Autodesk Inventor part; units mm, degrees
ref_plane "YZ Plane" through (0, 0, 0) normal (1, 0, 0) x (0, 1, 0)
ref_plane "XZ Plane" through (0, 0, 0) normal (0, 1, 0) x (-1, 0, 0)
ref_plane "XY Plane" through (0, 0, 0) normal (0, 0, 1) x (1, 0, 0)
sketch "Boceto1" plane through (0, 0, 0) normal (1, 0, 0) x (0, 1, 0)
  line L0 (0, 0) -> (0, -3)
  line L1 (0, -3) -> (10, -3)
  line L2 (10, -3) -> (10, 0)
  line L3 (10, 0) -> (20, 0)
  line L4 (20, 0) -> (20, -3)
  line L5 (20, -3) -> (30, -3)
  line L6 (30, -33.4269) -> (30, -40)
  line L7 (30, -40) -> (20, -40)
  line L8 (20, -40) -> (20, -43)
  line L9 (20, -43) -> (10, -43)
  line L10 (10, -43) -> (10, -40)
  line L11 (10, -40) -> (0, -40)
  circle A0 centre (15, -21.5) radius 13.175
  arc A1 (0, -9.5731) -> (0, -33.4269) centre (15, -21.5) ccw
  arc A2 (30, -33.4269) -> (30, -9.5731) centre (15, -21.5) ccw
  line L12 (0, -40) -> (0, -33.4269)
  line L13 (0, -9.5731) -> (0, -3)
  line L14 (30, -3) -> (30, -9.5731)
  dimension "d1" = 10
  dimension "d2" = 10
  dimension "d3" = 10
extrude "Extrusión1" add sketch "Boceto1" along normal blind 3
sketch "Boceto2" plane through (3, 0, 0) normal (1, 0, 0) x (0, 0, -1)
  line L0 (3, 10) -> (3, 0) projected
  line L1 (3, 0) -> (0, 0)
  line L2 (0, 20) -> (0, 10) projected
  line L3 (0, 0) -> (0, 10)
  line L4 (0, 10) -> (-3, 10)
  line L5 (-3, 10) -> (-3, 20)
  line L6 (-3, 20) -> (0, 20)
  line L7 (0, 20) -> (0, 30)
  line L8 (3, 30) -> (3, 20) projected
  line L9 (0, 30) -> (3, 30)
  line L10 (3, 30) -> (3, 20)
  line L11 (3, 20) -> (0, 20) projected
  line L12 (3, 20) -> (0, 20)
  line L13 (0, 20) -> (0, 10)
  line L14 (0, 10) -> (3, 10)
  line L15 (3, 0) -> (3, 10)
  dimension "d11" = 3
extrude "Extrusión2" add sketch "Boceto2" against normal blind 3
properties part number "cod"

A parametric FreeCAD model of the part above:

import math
import FreeCAD as App
import Part
import Sketcher
from FreeCAD import Vector

doc = App.newDocument("Part")
body = doc.addObject("PartDesign::Body", "Body")

# Sketch on YZ plane
sketch1 = body.newObject("Sketcher::SketchObject", "Sketch")
sketch1.AttachmentSupport = (doc.getObject("YZ_Plane"), [""])
sketch1.MapMode = "FlatFace"
sketch1.addGeometry(Part.LineSegment(Vector(10, -3, 0), Vector(0, -3, 0)), False)
sketch1.addGeometry(Part.LineSegment(Vector(0, -3, 0), Vector(0, -9.6, 0)), False)
sketch1.addGeometry(Part.ArcOfCircle(Part.Circle(Vector(15, -21.5, 0), Vector(0, 0, 1), 19.2), math.radians(142), math.radians(218)), False)
sketch1.addGeometry(Part.LineSegment(Vector(0, -33.4, 0), Vector(0, -40, 0)), False)
sketch1.addGeometry(Part.LineSegment(Vector(0, -40, 0), Vector(10, -40, 0)), False)
sketch1.addGeometry(Part.LineSegment(Vector(10, -40, 0), Vector(10, -43, 0)), False)
sketch1.addGeometry(Part.LineSegment(Vector(10, -43, 0), Vector(20, -43, 0)), False)
sketch1.addGeometry(Part.LineSegment(Vector(20, -43, 0), Vector(20, -40, 0)), False)
sketch1.addGeometry(Part.LineSegment(Vector(20, -40, 0), Vector(30, -40, 0)), False)
sketch1.addGeometry(Part.LineSegment(Vector(30, -40, 0), Vector(30, -33.4, 0)), False)
sketch1.addGeometry(Part.ArcOfCircle(Part.Circle(Vector(15, -21.5, 0), Vector(0, 0, 1), 19.2), math.radians(-38), math.radians(38)), False)
sketch1.addGeometry(Part.LineSegment(Vector(30, -9.6, 0), Vector(30, -3, 0)), False)
sketch1.addGeometry(Part.LineSegment(Vector(30, -3, 0), Vector(20, -3, 0)), False)
sketch1.addGeometry(Part.LineSegment(Vector(20, -3, 0), Vector(20, 0, 0)), False)
sketch1.addGeometry(Part.LineSegment(Vector(20, 0, 0), Vector(10, 0, 0)), False)
sketch1.addGeometry(Part.LineSegment(Vector(10, 0, 0), Vector(10, -3, 0)), False)
sketch1.addGeometry(Part.Circle(Vector(15, -21.5, 0), Vector(0, 0, 1), 13.2), False)
sketch1.addConstraint(Sketcher.Constraint("Coincident", 0, 2, 1, 1))
sketch1.addConstraint(Sketcher.Constraint("Coincident", 1, 2, 2, 1))
sketch1.addConstraint(Sketcher.Constraint("Coincident", 2, 2, 3, 1))
sketch1.addConstraint(Sketcher.Constraint("Coincident", 3, 2, 4, 1))
sketch1.addConstraint(Sketcher.Constraint("Coincident", 4, 2, 5, 1))
sketch1.addConstraint(Sketcher.Constraint("Coincident", 5, 2, 6, 1))
sketch1.addConstraint(Sketcher.Constraint("Coincident", 6, 2, 7, 1))
sketch1.addConstraint(Sketcher.Constraint("Coincident", 7, 2, 8, 1))
sketch1.addConstraint(Sketcher.Constraint("Coincident", 8, 2, 9, 1))
sketch1.addConstraint(Sketcher.Constraint("Coincident", 9, 2, 10, 1))
sketch1.addConstraint(Sketcher.Constraint("Coincident", 10, 2, 11, 1))
sketch1.addConstraint(Sketcher.Constraint("Coincident", 11, 2, 12, 1))
sketch1.addConstraint(Sketcher.Constraint("Coincident", 12, 2, 13, 1))
sketch1.addConstraint(Sketcher.Constraint("Coincident", 13, 2, 14, 1))
sketch1.addConstraint(Sketcher.Constraint("Coincident", 14, 2, 15, 1))
sketch1.addConstraint(Sketcher.Constraint("Coincident", 15, 2, 0, 1))
sketch1.addConstraint(Sketcher.Constraint("Horizontal", 0))
sketch1.addConstraint(Sketcher.Constraint("Vertical", 1))
sketch1.addConstraint(Sketcher.Constraint("Vertical", 3))
sketch1.addConstraint(Sketcher.Constraint("Horizontal", 4))
sketch1.addConstraint(Sketcher.Constraint("Vertical", 5))
sketch1.addConstraint(Sketcher.Constraint("Horizontal", 6))
sketch1.addConstraint(Sketcher.Constraint("Vertical", 7))
sketch1.addConstraint(Sketcher.Constraint("Horizontal", 8))
sketch1.addConstraint(Sketcher.Constraint("Vertical", 9))
sketch1.addConstraint(Sketcher.Constraint("Vertical", 11))
sketch1.addConstraint(Sketcher.Constraint("Horizontal", 12))
sketch1.addConstraint(Sketcher.Constraint("Vertical", 13))
sketch1.addConstraint(Sketcher.Constraint("Horizontal", 14))
sketch1.addConstraint(Sketcher.Constraint("Vertical", 15))
sketch1.addConstraint(Sketcher.Constraint("Coincident", 10, 3, 2, 3))
sketch1.addConstraint(Sketcher.Constraint("Coincident", 16, 3, 2, 3))
sketch1.addConstraint(Sketcher.Constraint("Equal", 2, 10))
sketch1.addConstraint(Sketcher.Constraint("PointOnObject", 0, 2, -2))
sketch1.addConstraint(Sketcher.Constraint("PointOnObject", 2, 2, -2))
sketch1.addConstraint(Sketcher.Constraint("PointOnObject", 13, 2, -1))
sketch1.addConstraint(Sketcher.Constraint("Horizontal", 4, 2, 7, 2))
sketch1.addConstraint(Sketcher.Constraint("Horizontal", 2, 2, 9, 2))
sketch1.addConstraint(Sketcher.Constraint("Horizontal", 1, 2, 10, 2))
sketch1.addConstraint(Sketcher.Constraint("Horizontal", 0, 2, 11, 2))
sketch1.addConstraint(Sketcher.Constraint("Vertical", 7, 2, 12, 2))
sketch1.addConstraint(Sketcher.Constraint("Vertical", 5, 2, 14, 2))
sketch1.addConstraint(Sketcher.Constraint("Equal", 4, 6))
sketch1.addConstraint(Sketcher.Constraint("Equal", 6, 8))
sketch1.addConstraint(Sketcher.Constraint("Equal", 1, 3))
sketch1.addConstraint(Sketcher.Constraint("Equal", 7, 13))
sketch1.addConstraint(Sketcher.Constraint("DistanceX", 0, 2, 0, 1, 10.0))
sketch1.addConstraint(Sketcher.Constraint("Diameter", 16, 26.35))
sketch1.addConstraint(Sketcher.Constraint("DistanceY", 5, 2, 5, 1, 3.0))
sketch1.addConstraint(Sketcher.Constraint("DistanceY", 3, 2, -1, 1, 40.0))
sketch1.addConstraint(Sketcher.Constraint("Radius", 2, 19.1638))
pad1 = body.newObject("PartDesign::Pad", "Pad")
pad1.Profile = sketch1
pad1.Length = 3

# Sketch on YZ plane
sketch2 = body.newObject("Sketcher::SketchObject", "Sketch001")
sketch2.AttachmentSupport = (doc.getObject("YZ_Plane"), [""])
sketch2.MapMode = "FlatFace"
sketch2.AttachmentOffset = App.Placement(Vector(0, 0, 3), App.Rotation())
sketch2.addGeometry(Part.LineSegment(Vector(30, 0, 0), Vector(20, 0, 0)), False)
sketch2.addGeometry(Part.LineSegment(Vector(20, 0, 0), Vector(20, -3, 0)), False)
sketch2.addGeometry(Part.LineSegment(Vector(20, -3, 0), Vector(30, -3, 0)), False)
sketch2.addGeometry(Part.LineSegment(Vector(30, -3, 0), Vector(30, 0, 0)), False)
sketch2.addGeometry(Part.LineSegment(Vector(10, 3, 0), Vector(10, 0, 0)), False)
sketch2.addGeometry(Part.LineSegment(Vector(10, 0, 0), Vector(20, 0, 0)), False)
sketch2.addGeometry(Part.LineSegment(Vector(20, 0, 0), Vector(20, 3, 0)), False)
sketch2.addGeometry(Part.LineSegment(Vector(20, 3, 0), Vector(10, 3, 0)), False)
sketch2.addGeometry(Part.LineSegment(Vector(0, -3, 0), Vector(10, -3, 0)), False)
sketch2.addGeometry(Part.LineSegment(Vector(10, -3, 0), Vector(10, 0, 0)), False)
sketch2.addGeometry(Part.LineSegment(Vector(10, 0, 0), Vector(0, 0, 0)), False)
sketch2.addGeometry(Part.LineSegment(Vector(0, 0, 0), Vector(0, -3, 0)), False)
sketch2.addConstraint(Sketcher.Constraint("Coincident", 0, 2, 1, 1))
sketch2.addConstraint(Sketcher.Constraint("Coincident", 1, 2, 2, 1))
sketch2.addConstraint(Sketcher.Constraint("Coincident", 2, 2, 3, 1))
sketch2.addConstraint(Sketcher.Constraint("Coincident", 3, 2, 0, 1))
sketch2.addConstraint(Sketcher.Constraint("Coincident", 4, 2, 5, 1))
sketch2.addConstraint(Sketcher.Constraint("Coincident", 5, 2, 6, 1))
sketch2.addConstraint(Sketcher.Constraint("Coincident", 6, 2, 7, 1))
sketch2.addConstraint(Sketcher.Constraint("Coincident", 7, 2, 4, 1))
sketch2.addConstraint(Sketcher.Constraint("Coincident", 8, 2, 9, 1))
sketch2.addConstraint(Sketcher.Constraint("Coincident", 9, 2, 10, 1))
sketch2.addConstraint(Sketcher.Constraint("Coincident", 10, 2, 11, 1))
sketch2.addConstraint(Sketcher.Constraint("Coincident", 11, 2, 8, 1))
sketch2.addConstraint(Sketcher.Constraint("Horizontal", 0))
sketch2.addConstraint(Sketcher.Constraint("Vertical", 1))
sketch2.addConstraint(Sketcher.Constraint("Horizontal", 2))
sketch2.addConstraint(Sketcher.Constraint("Vertical", 3))
sketch2.addConstraint(Sketcher.Constraint("Vertical", 4))
sketch2.addConstraint(Sketcher.Constraint("Horizontal", 5))
sketch2.addConstraint(Sketcher.Constraint("Vertical", 6))
sketch2.addConstraint(Sketcher.Constraint("Horizontal", 7))
sketch2.addConstraint(Sketcher.Constraint("Horizontal", 8))
sketch2.addConstraint(Sketcher.Constraint("Vertical", 9))
sketch2.addConstraint(Sketcher.Constraint("Horizontal", 10))
sketch2.addConstraint(Sketcher.Constraint("Vertical", 11))
sketch2.addConstraint(Sketcher.Constraint("Coincident", 10, 2, -1, 1))
sketch2.addConstraint(Sketcher.Constraint("Coincident", 5, 2, 0, 2))
sketch2.addConstraint(Sketcher.Constraint("Coincident", 9, 2, 4, 2))
sketch2.addConstraint(Sketcher.Constraint("Horizontal", 2, 2, 8, 2))
sketch2.addConstraint(Sketcher.Constraint("Equal", 2, 5))
sketch2.addConstraint(Sketcher.Constraint("Equal", 7, 8))
sketch2.addConstraint(Sketcher.Constraint("Equal", 3, 4))
sketch2.addConstraint(Sketcher.Constraint("DistanceY", 1, 2, 1, 1, 3.0))
sketch2.addConstraint(Sketcher.Constraint("DistanceX", 0, 2, 0, 1, 10.0))
pad2 = body.newObject("PartDesign::Pad", "Pad001")
pad2.Profile = sketch2
pad2.Length = 3
pad2.Reversed = True

doc.recompute()
